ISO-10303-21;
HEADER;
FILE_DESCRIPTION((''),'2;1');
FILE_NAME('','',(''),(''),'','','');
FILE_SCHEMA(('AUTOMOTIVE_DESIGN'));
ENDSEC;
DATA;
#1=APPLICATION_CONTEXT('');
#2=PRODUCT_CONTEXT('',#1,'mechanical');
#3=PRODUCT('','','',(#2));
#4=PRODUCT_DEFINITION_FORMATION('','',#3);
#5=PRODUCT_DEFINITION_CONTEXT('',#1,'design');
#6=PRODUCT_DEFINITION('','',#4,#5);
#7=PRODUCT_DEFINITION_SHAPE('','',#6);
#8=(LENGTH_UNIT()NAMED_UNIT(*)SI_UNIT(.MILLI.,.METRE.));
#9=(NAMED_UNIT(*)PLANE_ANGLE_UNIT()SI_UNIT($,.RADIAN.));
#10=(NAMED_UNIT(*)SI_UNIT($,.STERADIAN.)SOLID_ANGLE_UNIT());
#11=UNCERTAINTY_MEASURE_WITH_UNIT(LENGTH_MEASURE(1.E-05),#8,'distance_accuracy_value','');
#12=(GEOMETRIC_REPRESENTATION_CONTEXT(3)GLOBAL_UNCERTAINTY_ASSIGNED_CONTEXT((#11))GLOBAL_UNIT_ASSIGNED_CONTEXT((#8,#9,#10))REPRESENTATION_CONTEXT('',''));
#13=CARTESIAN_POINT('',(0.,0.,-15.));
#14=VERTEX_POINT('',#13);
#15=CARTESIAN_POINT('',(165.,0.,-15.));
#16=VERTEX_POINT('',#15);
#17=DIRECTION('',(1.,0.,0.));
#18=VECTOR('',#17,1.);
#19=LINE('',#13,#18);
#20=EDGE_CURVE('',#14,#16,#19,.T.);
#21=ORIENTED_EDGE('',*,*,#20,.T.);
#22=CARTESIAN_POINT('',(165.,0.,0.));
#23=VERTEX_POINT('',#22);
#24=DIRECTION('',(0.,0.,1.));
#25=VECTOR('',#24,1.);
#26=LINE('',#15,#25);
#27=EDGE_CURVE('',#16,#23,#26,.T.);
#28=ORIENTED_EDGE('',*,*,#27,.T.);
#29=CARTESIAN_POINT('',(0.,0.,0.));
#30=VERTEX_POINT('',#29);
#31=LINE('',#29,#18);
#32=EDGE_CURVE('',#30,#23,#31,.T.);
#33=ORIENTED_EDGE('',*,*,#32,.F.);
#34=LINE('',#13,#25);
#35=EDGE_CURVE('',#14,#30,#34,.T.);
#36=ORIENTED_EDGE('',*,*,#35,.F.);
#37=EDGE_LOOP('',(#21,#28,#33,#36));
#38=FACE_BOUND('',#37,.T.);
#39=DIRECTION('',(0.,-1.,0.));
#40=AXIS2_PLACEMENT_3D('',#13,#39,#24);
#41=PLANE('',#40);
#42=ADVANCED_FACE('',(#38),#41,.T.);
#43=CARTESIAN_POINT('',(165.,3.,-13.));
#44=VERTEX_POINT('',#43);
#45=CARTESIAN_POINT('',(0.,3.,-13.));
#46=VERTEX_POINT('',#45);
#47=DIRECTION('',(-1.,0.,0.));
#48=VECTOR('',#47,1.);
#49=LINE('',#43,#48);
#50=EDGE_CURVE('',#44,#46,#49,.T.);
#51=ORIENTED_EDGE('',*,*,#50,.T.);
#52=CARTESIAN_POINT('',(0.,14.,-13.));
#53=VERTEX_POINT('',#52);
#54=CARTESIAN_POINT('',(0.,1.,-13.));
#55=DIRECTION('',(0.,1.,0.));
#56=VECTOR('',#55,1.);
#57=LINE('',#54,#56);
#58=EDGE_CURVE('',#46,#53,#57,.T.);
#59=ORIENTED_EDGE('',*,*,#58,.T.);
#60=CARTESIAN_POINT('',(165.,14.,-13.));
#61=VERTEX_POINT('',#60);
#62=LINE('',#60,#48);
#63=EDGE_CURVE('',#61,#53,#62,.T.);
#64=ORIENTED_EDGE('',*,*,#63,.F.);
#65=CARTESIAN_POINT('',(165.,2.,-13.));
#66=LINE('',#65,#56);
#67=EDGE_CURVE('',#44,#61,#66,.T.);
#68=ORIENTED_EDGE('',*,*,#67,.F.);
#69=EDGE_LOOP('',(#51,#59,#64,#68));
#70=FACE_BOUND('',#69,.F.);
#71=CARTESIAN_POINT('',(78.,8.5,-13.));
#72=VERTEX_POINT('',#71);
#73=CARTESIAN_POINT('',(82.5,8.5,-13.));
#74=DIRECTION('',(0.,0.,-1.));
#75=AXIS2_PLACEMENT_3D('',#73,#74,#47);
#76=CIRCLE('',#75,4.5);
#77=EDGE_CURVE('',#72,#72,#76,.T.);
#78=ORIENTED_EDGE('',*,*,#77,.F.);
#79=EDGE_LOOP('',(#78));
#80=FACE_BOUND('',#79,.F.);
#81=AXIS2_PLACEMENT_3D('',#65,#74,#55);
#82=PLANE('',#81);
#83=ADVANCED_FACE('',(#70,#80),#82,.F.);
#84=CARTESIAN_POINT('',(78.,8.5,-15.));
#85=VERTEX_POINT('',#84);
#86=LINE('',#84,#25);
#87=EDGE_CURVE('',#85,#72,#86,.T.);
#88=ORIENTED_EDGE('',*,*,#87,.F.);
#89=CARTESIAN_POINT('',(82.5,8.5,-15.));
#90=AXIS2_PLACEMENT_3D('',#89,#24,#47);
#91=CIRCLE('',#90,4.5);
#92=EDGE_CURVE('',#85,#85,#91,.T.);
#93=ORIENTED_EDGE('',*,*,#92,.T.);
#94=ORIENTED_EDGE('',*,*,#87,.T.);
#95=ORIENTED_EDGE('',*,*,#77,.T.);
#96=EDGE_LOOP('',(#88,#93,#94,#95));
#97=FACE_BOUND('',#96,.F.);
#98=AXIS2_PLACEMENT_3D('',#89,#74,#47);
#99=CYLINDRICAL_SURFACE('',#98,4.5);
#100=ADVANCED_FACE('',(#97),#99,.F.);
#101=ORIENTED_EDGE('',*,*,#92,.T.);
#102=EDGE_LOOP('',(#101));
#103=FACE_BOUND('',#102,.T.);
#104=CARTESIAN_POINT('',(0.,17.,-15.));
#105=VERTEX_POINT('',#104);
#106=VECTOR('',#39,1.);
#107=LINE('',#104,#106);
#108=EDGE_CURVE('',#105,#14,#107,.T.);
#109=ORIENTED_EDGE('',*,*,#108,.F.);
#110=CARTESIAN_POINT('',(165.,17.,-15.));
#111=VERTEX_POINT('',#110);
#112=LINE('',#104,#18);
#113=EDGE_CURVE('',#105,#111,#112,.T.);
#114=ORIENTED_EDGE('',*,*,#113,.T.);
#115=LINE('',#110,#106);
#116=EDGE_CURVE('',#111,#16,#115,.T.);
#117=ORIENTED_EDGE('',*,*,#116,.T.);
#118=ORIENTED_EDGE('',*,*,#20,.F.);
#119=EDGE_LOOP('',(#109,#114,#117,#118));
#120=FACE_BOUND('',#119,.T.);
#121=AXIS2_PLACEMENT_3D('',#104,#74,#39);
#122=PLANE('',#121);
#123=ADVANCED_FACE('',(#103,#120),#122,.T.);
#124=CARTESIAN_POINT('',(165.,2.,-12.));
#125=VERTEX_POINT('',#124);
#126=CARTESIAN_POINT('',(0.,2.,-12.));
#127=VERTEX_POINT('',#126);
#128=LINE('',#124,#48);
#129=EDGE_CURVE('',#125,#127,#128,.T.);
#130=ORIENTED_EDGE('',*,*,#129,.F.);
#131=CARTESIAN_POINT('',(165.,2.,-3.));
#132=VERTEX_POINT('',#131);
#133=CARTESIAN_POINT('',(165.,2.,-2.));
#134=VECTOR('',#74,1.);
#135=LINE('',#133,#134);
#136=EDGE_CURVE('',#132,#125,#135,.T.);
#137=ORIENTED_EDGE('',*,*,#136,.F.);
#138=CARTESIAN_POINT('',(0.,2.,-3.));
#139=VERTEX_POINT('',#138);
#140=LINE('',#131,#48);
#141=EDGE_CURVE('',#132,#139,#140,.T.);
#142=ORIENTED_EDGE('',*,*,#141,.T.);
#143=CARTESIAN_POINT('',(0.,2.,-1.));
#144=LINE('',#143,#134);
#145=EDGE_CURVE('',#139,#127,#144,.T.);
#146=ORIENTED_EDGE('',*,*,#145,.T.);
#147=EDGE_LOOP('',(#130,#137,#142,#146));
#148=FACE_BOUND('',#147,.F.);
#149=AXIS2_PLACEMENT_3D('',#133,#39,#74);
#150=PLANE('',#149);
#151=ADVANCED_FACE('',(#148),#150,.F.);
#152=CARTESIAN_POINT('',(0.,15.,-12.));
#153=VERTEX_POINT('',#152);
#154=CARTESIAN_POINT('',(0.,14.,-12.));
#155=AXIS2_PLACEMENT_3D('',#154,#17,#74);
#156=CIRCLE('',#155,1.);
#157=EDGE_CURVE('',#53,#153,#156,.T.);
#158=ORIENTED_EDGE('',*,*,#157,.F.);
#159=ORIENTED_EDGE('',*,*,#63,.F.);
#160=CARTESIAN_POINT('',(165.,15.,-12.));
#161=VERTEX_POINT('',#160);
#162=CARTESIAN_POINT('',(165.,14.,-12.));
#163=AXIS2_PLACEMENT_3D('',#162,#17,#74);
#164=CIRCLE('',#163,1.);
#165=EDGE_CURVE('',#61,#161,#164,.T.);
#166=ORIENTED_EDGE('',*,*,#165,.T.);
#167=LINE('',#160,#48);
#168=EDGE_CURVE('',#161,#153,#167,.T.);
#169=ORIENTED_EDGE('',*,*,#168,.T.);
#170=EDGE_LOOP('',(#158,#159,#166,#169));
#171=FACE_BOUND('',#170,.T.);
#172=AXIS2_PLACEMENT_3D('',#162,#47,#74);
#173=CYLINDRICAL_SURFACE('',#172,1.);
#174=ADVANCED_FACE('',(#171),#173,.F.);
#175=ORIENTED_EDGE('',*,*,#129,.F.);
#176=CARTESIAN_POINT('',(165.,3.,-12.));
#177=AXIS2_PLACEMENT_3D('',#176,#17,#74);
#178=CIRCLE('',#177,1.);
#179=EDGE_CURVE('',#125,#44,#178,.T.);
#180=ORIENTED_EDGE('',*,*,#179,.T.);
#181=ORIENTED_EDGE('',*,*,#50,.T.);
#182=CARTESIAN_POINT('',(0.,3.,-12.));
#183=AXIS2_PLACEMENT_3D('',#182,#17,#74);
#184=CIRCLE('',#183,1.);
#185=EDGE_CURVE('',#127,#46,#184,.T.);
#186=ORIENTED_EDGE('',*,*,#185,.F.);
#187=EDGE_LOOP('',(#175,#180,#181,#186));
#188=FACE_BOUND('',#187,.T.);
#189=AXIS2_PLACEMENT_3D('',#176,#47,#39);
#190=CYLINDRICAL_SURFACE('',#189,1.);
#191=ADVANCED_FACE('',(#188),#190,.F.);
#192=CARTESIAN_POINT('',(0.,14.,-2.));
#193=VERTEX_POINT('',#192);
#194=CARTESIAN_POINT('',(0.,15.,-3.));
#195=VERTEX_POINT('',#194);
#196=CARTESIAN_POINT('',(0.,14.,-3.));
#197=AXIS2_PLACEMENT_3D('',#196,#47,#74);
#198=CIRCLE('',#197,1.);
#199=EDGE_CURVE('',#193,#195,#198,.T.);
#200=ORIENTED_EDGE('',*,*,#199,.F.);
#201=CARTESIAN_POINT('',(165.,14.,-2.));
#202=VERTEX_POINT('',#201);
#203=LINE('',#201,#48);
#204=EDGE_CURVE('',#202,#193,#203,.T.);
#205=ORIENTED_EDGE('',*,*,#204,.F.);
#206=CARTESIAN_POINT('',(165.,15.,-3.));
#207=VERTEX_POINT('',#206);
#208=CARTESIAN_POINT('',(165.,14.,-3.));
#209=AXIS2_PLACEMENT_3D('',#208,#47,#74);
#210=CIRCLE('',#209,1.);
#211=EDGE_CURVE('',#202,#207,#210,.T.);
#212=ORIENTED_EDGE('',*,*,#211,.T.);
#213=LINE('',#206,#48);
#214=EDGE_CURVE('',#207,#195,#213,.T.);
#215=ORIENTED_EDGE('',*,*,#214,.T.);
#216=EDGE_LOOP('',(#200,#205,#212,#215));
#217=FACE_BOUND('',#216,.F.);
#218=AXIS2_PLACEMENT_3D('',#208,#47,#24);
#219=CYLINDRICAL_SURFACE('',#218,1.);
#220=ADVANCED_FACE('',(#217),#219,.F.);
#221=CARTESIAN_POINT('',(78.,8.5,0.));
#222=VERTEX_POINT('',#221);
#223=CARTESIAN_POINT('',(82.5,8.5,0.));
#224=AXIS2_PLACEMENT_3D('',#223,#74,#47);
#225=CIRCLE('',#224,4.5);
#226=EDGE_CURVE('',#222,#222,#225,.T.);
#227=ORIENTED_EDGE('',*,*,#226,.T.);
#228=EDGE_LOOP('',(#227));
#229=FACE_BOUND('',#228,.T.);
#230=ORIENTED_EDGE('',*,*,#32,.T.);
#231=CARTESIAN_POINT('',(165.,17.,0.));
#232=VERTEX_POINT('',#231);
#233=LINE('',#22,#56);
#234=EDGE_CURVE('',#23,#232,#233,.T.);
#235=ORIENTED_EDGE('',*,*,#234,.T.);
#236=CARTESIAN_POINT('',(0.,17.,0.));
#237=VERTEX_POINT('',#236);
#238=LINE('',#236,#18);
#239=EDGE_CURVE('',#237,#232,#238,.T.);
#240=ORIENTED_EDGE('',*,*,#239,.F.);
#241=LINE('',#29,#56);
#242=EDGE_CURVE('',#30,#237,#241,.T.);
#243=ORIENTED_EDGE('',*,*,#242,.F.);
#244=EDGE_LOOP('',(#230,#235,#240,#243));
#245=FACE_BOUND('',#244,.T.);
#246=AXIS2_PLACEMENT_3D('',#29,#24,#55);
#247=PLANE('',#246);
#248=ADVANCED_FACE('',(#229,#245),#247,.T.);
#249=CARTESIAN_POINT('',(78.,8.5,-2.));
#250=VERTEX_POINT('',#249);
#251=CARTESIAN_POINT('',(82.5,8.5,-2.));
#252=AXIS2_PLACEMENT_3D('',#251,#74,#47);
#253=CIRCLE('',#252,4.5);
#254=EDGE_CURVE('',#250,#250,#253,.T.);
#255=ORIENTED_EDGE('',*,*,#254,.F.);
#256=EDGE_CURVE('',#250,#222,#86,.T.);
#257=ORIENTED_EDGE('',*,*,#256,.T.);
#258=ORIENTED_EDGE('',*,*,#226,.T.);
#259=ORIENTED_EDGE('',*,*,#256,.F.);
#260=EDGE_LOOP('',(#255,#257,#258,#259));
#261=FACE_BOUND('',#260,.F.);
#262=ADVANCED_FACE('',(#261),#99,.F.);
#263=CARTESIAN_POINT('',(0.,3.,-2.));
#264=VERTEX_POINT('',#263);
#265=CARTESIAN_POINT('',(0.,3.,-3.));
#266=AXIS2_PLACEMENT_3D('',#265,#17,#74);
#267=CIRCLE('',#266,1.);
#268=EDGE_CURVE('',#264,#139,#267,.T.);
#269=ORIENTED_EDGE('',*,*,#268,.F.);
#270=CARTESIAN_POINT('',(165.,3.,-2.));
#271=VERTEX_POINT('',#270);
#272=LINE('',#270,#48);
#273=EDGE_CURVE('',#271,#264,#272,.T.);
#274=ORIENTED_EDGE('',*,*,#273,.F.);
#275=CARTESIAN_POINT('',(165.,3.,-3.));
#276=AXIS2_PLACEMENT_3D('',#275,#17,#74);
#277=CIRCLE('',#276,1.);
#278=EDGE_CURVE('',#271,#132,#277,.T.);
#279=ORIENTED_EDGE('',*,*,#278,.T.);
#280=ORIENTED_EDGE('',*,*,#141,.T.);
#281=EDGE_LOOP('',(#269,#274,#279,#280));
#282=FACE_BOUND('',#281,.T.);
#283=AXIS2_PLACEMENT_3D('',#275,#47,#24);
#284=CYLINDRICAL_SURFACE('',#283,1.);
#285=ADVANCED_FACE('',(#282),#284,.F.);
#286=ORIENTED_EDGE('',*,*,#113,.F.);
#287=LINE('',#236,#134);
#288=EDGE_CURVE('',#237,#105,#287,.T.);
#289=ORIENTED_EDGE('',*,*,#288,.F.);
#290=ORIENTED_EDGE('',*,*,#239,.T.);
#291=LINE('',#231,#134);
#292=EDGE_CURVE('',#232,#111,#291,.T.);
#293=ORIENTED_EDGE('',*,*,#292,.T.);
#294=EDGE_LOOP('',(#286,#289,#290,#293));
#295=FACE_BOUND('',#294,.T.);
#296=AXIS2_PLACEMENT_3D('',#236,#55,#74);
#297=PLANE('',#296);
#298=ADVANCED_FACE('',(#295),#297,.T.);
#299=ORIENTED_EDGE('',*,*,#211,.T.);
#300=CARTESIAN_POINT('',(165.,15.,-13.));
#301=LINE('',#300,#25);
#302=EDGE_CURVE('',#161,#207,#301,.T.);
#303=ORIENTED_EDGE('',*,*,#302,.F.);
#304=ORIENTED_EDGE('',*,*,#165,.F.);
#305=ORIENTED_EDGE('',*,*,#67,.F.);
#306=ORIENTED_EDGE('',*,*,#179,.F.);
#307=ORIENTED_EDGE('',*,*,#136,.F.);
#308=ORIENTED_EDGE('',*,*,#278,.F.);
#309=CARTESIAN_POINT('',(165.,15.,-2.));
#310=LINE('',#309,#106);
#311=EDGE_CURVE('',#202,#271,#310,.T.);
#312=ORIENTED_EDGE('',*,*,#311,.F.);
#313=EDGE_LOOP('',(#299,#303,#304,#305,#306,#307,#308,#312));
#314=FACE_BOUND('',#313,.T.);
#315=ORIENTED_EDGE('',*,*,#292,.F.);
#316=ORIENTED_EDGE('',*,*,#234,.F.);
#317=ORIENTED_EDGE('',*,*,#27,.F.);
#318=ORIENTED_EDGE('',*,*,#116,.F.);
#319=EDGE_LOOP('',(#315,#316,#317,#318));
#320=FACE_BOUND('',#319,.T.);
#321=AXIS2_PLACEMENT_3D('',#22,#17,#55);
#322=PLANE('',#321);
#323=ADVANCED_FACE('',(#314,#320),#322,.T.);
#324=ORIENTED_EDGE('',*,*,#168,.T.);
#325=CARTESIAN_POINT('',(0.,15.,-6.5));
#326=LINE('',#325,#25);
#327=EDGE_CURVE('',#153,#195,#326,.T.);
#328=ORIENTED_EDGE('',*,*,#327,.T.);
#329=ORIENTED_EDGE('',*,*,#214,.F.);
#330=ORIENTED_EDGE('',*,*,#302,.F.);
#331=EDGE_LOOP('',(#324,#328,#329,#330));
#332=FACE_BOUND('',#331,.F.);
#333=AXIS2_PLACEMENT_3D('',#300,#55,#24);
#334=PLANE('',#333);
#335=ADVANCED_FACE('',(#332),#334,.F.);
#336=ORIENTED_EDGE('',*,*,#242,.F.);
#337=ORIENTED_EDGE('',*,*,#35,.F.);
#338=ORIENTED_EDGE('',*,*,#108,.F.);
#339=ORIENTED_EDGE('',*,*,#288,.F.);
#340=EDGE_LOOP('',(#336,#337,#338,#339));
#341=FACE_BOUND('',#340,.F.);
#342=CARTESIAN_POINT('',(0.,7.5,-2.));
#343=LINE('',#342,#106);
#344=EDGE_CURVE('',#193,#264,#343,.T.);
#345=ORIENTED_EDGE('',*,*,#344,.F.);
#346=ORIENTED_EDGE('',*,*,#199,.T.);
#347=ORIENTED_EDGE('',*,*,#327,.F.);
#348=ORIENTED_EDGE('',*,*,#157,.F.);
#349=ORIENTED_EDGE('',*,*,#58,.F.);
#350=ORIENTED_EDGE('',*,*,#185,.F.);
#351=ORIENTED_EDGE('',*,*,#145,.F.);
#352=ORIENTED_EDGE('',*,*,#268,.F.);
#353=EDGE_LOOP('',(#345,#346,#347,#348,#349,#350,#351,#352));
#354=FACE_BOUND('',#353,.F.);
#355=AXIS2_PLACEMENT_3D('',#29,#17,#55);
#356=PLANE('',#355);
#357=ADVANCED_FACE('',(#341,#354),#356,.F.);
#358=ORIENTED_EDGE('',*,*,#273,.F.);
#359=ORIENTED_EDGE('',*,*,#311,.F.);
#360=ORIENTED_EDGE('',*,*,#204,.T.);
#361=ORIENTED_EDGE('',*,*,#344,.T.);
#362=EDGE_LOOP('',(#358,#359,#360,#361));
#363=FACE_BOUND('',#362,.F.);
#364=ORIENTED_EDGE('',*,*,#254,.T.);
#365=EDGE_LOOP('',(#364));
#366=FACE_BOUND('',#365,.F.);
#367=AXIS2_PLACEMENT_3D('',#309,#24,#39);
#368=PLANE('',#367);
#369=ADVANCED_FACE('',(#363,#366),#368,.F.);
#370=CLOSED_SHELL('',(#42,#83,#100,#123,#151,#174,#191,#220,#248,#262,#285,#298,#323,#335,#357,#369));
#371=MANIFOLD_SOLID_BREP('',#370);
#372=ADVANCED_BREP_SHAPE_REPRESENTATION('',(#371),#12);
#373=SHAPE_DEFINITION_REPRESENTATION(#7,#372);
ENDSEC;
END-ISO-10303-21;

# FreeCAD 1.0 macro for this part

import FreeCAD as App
import Part
import Sketcher


def edges_at(feature, points):
    """Names of the edges that pass closest to the given points."""
    edges = feature.Shape.Edges
    near = lambda p: min(range(len(edges)), key=lambda i: edges[i].distToShape(Part.Vertex(*p))[0])
    return sorted({f"Edge{near(p) + 1}" for p in points})

doc = App.newDocument("Part")
body = doc.addObject("PartDesign::Body", "Body")

# Sketch on YZ plane
sketch1 = doc.addObject("Sketcher::SketchObject", "Sketch")
body.addObject(sketch1)
sketch1.AttachmentSupport = (doc.YZ_Plane, [""])
sketch1.MapMode = "FlatFace"
sketch1.addGeometry([
    Part.LineSegment(App.Vector(17, 0, 0), App.Vector(0, 0, 0)),
    Part.LineSegment(App.Vector(0, 0, 0), App.Vector(0, -15, 0)),
    Part.LineSegment(App.Vector(0, -15, 0), App.Vector(17, -15, 0)),
    Part.LineSegment(App.Vector(17, -15, 0), App.Vector(17, 0, 0)),
], False)
sketch1.addConstraint([
    Sketcher.Constraint("Coincident", 0, 2, 1, 1),
    Sketcher.Constraint("Coincident", 1, 2, 2, 1),
    Sketcher.Constraint("Coincident", 2, 2, 3, 1),
    Sketcher.Constraint("Coincident", 3, 2, 0, 1),
    Sketcher.Constraint("Horizontal", 0),
    Sketcher.Constraint("Vertical", 1),
    Sketcher.Constraint("Horizontal", 2),
    Sketcher.Constraint("Vertical", 3),
    Sketcher.Constraint("Coincident", 0, 2, -1, 1),
    Sketcher.Constraint("DistanceX", 0, 2, 0, 1, 17.0),
    Sketcher.Constraint("DistanceY", 1, 2, 1, 1, 15.0),
])
pad1 = doc.addObject("PartDesign::Pad", "Pad")
body.addObject(pad1)
pad1.Profile = sketch1
pad1.Length = 165

# Sketch on YZ plane
sketch2 = doc.addObject("Sketcher::SketchObject", "Sketch001")
body.addObject(sketch2)
sketch2.AttachmentSupport = (doc.YZ_Plane, [""])
sketch2.MapMode = "FlatFace"
sketch2.AttachmentOffset = App.Placement(App.Vector(0, 0, 165), App.Rotation())
sketch2.addGeometry([
    Part.LineSegment(App.Vector(15, -2, 0), App.Vector(2, -2, 0)),
    Part.LineSegment(App.Vector(2, -2, 0), App.Vector(2, -13, 0)),
    Part.LineSegment(App.Vector(2, -13, 0), App.Vector(15, -13, 0)),
    Part.LineSegment(App.Vector(15, -13, 0), App.Vector(15, -2, 0)),
], False)
sketch2.addConstraint([
    Sketcher.Constraint("Coincident", 0, 2, 1, 1),
    Sketcher.Constraint("Coincident", 1, 2, 2, 1),
    Sketcher.Constraint("Coincident", 2, 2, 3, 1),
    Sketcher.Constraint("Coincident", 3, 2, 0, 1),
    Sketcher.Constraint("Horizontal", 0),
    Sketcher.Constraint("Vertical", 1),
    Sketcher.Constraint("Horizontal", 2),
    Sketcher.Constraint("Vertical", 3),
    Sketcher.Constraint("DistanceX", 0, 2, 0, 1, 13.0),
    Sketcher.Constraint("DistanceY", 1, 2, 1, 1, 11.0),
    Sketcher.Constraint("DistanceY", 1, 2, -1, 1, 13.0),
    Sketcher.Constraint("DistanceX", -1, 1, 0, 2, 2.0),
])
pocket1 = doc.addObject("PartDesign::Pocket", "Pocket")
body.addObject(pocket1)
pocket1.Profile = sketch2
pocket1.Type = "ThroughAll"

# Sketch on XY plane
sketch3 = doc.addObject("Sketcher::SketchObject", "Sketch002")
body.addObject(sketch3)
sketch3.AttachmentSupport = (doc.XY_Plane, [""])
sketch3.MapMode = "FlatFace"
sketch3.AttachmentOffset = App.Placement(App.Vector(0, 0, -15), App.Rotation())
sketch3.addGeometry(Part.Circle(App.Vector(82.5, 8.5, 0), App.Vector(0, 0, 1), 4.5), False)
sketch3.addConstraint([
    Sketcher.Constraint("Diameter", 0, 9.0),
    Sketcher.Constraint("DistanceX", -1, 1, 0, 3, 82.5),
    Sketcher.Constraint("DistanceY", -1, 1, 0, 3, 8.5),
])
pocket2 = doc.addObject("PartDesign::Pocket", "Pocket001")
body.addObject(pocket2)
pocket2.Profile = sketch3
pocket2.Type = "ThroughAll"
pocket2.Reversed = True
doc.recompute()

fillet = doc.addObject("PartDesign::Fillet", "Fillet")
body.addObject(fillet)
fillet.Base = (pocket2, edges_at(pocket2, [
    (82.5, 2, -13),
    (82.5, 2, -2),
    (82.5, 15, -2),
    (82.5, 15, -13),
]))
fillet.Radius = 1

doc.recompute()
